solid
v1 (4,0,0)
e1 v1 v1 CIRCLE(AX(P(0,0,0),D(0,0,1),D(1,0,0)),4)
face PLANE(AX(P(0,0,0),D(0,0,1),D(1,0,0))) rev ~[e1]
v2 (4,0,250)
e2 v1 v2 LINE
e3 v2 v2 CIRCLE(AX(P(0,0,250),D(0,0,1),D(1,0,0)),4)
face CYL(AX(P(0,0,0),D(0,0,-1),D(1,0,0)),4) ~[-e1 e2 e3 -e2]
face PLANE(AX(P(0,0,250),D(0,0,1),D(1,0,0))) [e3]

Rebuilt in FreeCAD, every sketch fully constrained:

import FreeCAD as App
import Part
import Sketcher
Q = App.Units.Quantity

doc = App.newDocument("Part")
params = doc.addObject("Spreadsheet::Sheet", "Params")
for row, (alias, value) in enumerate([
    ("sketch1_diameter", "8 mm"),
    ("pad1_length", "250 mm"),
], start=1):
    params.set(f"A{row}", alias)
    params.set(f"B{row}", "=" + value)
    params.setAlias(f"B{row}", alias)

body = doc.addObject("PartDesign::Body", "Body")

sketch1 = doc.addObject("Sketcher::SketchObject", "Sketch")
body.addObject(sketch1)
sketch1.AttachmentSupport = (doc.XY_Plane, [""])
sketch1.MapMode = "FlatFace"
sketch1.addGeometry(Part.Circle(App.Vector(0, 0, 0), App.Vector(0, 0, 1), 4), False)
sketch1.addConstraint(Sketcher.Constraint("Coincident", 0, 3, -1, 1))
sketch1.addConstraint(Sketcher.Constraint("Diameter", 0, Q("8 mm")))
sketch1.setExpression("Constraints[1]", "Params.sketch1_diameter")
pad1 = doc.addObject("PartDesign::Pad", "Pad")
body.addObject(pad1)
pad1.Profile = sketch1
pad1.setExpression("Length", "Params.pad1_length")

doc.recompute()
